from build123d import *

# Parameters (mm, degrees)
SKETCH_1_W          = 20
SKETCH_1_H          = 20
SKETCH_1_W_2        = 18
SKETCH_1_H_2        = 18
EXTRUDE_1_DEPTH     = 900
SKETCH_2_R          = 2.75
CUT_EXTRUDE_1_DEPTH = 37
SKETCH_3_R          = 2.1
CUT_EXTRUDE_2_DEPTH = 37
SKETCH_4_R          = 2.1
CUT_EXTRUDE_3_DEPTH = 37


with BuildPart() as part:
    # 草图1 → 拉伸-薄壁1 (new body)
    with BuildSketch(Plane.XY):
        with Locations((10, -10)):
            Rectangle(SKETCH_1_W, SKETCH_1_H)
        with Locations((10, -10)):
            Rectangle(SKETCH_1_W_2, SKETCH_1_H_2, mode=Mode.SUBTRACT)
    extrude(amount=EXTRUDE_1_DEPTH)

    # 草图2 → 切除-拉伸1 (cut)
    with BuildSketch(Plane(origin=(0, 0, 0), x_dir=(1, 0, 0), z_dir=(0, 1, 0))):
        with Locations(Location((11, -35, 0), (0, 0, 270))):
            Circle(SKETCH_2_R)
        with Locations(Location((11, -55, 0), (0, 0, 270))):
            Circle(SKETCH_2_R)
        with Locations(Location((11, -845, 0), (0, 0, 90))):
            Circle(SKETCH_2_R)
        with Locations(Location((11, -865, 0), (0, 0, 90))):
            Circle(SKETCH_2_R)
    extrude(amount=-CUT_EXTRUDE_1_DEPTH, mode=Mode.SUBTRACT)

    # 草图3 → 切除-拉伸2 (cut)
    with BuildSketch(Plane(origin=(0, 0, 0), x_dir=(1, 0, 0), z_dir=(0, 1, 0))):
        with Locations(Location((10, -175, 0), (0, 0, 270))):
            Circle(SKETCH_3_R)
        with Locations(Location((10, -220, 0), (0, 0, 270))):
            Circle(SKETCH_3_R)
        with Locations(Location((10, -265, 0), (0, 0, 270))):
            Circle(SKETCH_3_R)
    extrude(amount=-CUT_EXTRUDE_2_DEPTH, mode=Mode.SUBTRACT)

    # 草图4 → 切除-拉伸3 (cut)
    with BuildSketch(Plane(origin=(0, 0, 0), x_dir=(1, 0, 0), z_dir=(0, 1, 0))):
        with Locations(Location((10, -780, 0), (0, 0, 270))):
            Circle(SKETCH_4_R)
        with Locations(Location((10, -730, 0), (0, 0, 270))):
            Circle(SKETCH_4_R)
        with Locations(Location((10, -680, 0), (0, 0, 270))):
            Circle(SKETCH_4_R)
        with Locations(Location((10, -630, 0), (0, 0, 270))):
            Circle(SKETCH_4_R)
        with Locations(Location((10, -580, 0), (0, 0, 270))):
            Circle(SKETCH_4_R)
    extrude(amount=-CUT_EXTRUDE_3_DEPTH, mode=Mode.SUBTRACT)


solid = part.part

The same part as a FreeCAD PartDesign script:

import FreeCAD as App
import Part
import Sketcher
Q = App.Units.Quantity

doc = App.newDocument("Part")
params = doc.addObject("Spreadsheet::Sheet", "Params")
for row, (alias, value) in enumerate([
    ("sketch1_width", "20 mm"),
    ("sketch1_width2", "18 mm"),
    ("pad1_length", "900 mm"),
    ("sketch2_diameter", "5.5 mm"),
    ("pocket1_length", "37 mm"),
    ("sketch3_diameter", "4.2 mm"),
    ("pocket2_length", "37 mm"),
    ("sketch4_diameter", "4.2 mm"),
    ("pocket3_length", "37 mm"),
], start=1):
    params.set(f"A{row}", alias)
    params.set(f"B{row}", "=" + value)
    params.setAlias(f"B{row}", alias)

body = doc.addObject("PartDesign::Body", "Body")

sketch1 = body.newObject("Sketcher::SketchObject", "Sketch")
sketch1.AttachmentSupport = (doc.getObject("XY_Plane"), [""])
sketch1.MapMode = "FlatFace"
sketch1.addGeometry(Part.LineSegment(App.Vector(0, 0, 0), App.Vector(0, -20, 0)), False)
sketch1.addGeometry(Part.LineSegment(App.Vector(0, -20, 0), App.Vector(20, -20, 0)), False)
sketch1.addGeometry(Part.LineSegment(App.Vector(20, -20, 0), App.Vector(20, 0, 0)), False)
sketch1.addGeometry(Part.LineSegment(App.Vector(20, 0, 0), App.Vector(0, 0, 0)), False)
sketch1.addGeometry(Part.LineSegment(App.Vector(19, -19, 0), App.Vector(1, -19, 0)), False)
sketch1.addGeometry(Part.LineSegment(App.Vector(1, -19, 0), App.Vector(1, -1, 0)), False)
sketch1.addGeometry(Part.LineSegment(App.Vector(1, -1, 0), App.Vector(19, -1, 0)), False)
sketch1.addGeometry(Part.LineSegment(App.Vector(19, -1, 0), App.Vector(19, -19, 0)), False)
sketch1.addConstraint(Sketcher.Constraint("Coincident", 0, 2, 1, 1))
sketch1.addConstraint(Sketcher.Constraint("Coincident", 1, 2, 2, 1))
sketch1.addConstraint(Sketcher.Constraint("Coincident", 2, 2, 3, 1))
sketch1.addConstraint(Sketcher.Constraint("Coincident", 3, 2, 0, 1))
sketch1.addConstraint(Sketcher.Constraint("Coincident", 4, 2, 5, 1))
sketch1.addConstraint(Sketcher.Constraint("Coincident", 5, 2, 6, 1))
sketch1.addConstraint(Sketcher.Constraint("Coincident", 6, 2, 7, 1))
sketch1.addConstraint(Sketcher.Constraint("Coincident", 7, 2, 4, 1))
sketch1.addConstraint(Sketcher.Constraint("Vertical", 0))
sketch1.addConstraint(Sketcher.Constraint("Horizontal", 1))
sketch1.addConstraint(Sketcher.Constraint("Vertical", 2))
sketch1.addConstraint(Sketcher.Constraint("Horizontal", 3))
sketch1.addConstraint(Sketcher.Constraint("Horizontal", 4))
sketch1.addConstraint(Sketcher.Constraint("Vertical", 5))
sketch1.addConstraint(Sketcher.Constraint("Horizontal", 6))
sketch1.addConstraint(Sketcher.Constraint("Vertical", 7))
sketch1.addConstraint(Sketcher.Constraint("Coincident", 3, 2, -1, 1))
sketch1.addConstraint(Sketcher.Constraint("Equal", 3, 0))
sketch1.addConstraint(Sketcher.Constraint("Equal", 6, 5))
sketch1.addConstraint(Sketcher.Constraint("DistanceX", 1, 1, 1, 2, Q("20 mm")))
sketch1.addConstraint(Sketcher.Constraint("DistanceX", 4, 2, 4, 1, Q("18 mm")))
sketch1.addConstraint(Sketcher.Constraint("DistanceX", -1, 1, 4, 2, Q("1 mm")))
sketch1.addConstraint(Sketcher.Constraint("DistanceY", 4, 2, -1, 1, Q("19 mm")))
sketch1.setExpression("Constraints[19]", "Params.sketch1_width")
sketch1.setExpression("Constraints[20]", "Params.sketch1_width2")
pad1 = body.newObject("PartDesign::Pad", "Pad")
pad1.Profile = sketch1
pad1.setExpression("Length", "Params.pad1_length")

sketch2 = body.newObject("Sketcher::SketchObject", "Sketch001")
sketch2.AttachmentSupport = (doc.getObject("XZ_Plane"), [""])
sketch2.MapMode = "FlatFace"
sketch2.addGeometry(Part.Circle(App.Vector(11, 35, 0), App.Vector(0, 0, 1), 2.75), False)
sketch2.addGeometry(Part.Circle(App.Vector(11, 55, 0), App.Vector(0, 0, 1), 2.75), False)
sketch2.addGeometry(Part.Circle(App.Vector(11, 845, 0), App.Vector(0, 0, 1), 2.75), False)
sketch2.addGeometry(Part.Circle(App.Vector(11, 865, 0), App.Vector(0, 0, 1), 2.75), False)
sketch2.addConstraint(Sketcher.Constraint("Equal", 0, 1))
sketch2.addConstraint(Sketcher.Constraint("Equal", 1, 2))
sketch2.addConstraint(Sketcher.Constraint("Equal", 2, 3))
sketch2.addConstraint(Sketcher.Constraint("Vertical", 0, 3, 1, 3))
sketch2.addConstraint(Sketcher.Constraint("Vertical", 1, 3, 2, 3))
sketch2.addConstraint(Sketcher.Constraint("Vertical", 2, 3, 3, 3))
sketch2.addConstraint(Sketcher.Constraint("Diameter", 0, Q("5.5 mm")))
sketch2.addConstraint(Sketcher.Constraint("DistanceX", -1, 1, 0, 3, Q("11 mm")))
sketch2.addConstraint(Sketcher.Constraint("DistanceY", -1, 1, 0, 3, Q("35 mm")))
sketch2.addConstraint(Sketcher.Constraint("DistanceY", -1, 1, 1, 3, Q("55 mm")))
sketch2.addConstraint(Sketcher.Constraint("DistanceY", -1, 1, 2, 3, Q("845 mm")))
sketch2.addConstraint(Sketcher.Constraint("DistanceY", -1, 1, 3, 3, Q("865 mm")))
sketch2.setExpression("Constraints[6]", "Params.sketch2_diameter")
pocket1 = body.newObject("PartDesign::Pocket", "Pocket")
pocket1.Profile = sketch2
pocket1.setExpression("Length", "Params.pocket1_length")
pocket1.Reversed = True

sketch3 = body.newObject("Sketcher::SketchObject", "Sketch002")
sketch3.AttachmentSupport = (doc.getObject("XZ_Plane"), [""])
sketch3.MapMode = "FlatFace"
sketch3.addGeometry(Part.Circle(App.Vector(10, 175, 0), App.Vector(0, 0, 1), 2.1), False)
sketch3.addGeometry(Part.Circle(App.Vector(10, 220, 0), App.Vector(0, 0, 1), 2.1), False)
sketch3.addGeometry(Part.Circle(App.Vector(10, 265, 0), App.Vector(0, 0, 1), 2.1), False)
sketch3.addConstraint(Sketcher.Constraint("Equal", 0, 1))
sketch3.addConstraint(Sketcher.Constraint("Equal", 1, 2))
sketch3.addConstraint(Sketcher.Constraint("Vertical", 0, 3, 1, 3))
sketch3.addConstraint(Sketcher.Constraint("Vertical", 1, 3, 2, 3))
sketch3.addConstraint(Sketcher.Constraint("Diameter", 0, Q("4.2 mm")))
sketch3.addConstraint(Sketcher.Constraint("DistanceX", -1, 1, 0, 3, Q("10 mm")))
sketch3.addConstraint(Sketcher.Constraint("DistanceY", -1, 1, 0, 3, Q("175 mm")))
sketch3.addConstraint(Sketcher.Constraint("DistanceY", -1, 1, 1, 3, Q("220 mm")))
sketch3.addConstraint(Sketcher.Constraint("DistanceY", -1, 1, 2, 3, Q("265 mm")))
sketch3.setExpression("Constraints[4]", "Params.sketch3_diameter")
pocket2 = body.newObject("PartDesign::Pocket", "Pocket001")
pocket2.Profile = sketch3
pocket2.setExpression("Length", "Params.pocket2_length")
pocket2.Reversed = True

sketch4 = body.newObject("Sketcher::SketchObject", "Sketch003")
sketch4.AttachmentSupport = (doc.getObject("XZ_Plane"), [""])
sketch4.MapMode = "FlatFace"
sketch4.addGeometry(Part.Circle(App.Vector(10, 780, 0), App.Vector(0, 0, 1), 2.1), False)
sketch4.addGeometry(Part.Circle(App.Vector(10, 730, 0), App.Vector(0, 0, 1), 2.1), False)
sketch4.addGeometry(Part.Circle(App.Vector(10, 680, 0), App.Vector(0, 0, 1), 2.1), False)
sketch4.addGeometry(Part.Circle(App.Vector(10, 630, 0), App.Vector(0, 0, 1), 2.1), False)
sketch4.addGeometry(Part.Circle(App.Vector(10, 580, 0), App.Vector(0, 0, 1), 2.1), False)
sketch4.addConstraint(Sketcher.Constraint("Equal", 0, 1))
sketch4.addConstraint(Sketcher.Constraint("Equal", 1, 2))
sketch4.addConstraint(Sketcher.Constraint("Equal", 2, 3))
sketch4.addConstraint(Sketcher.Constraint("Equal", 3, 4))
sketch4.addConstraint(Sketcher.Constraint("Vertical", 0, 3, 1, 3))
sketch4.addConstraint(Sketcher.Constraint("Vertical", 1, 3, 2, 3))
sketch4.addConstraint(Sketcher.Constraint("Vertical", 2, 3, 3, 3))
sketch4.addConstraint(Sketcher.Constraint("Vertical", 3, 3, 4, 3))
sketch4.addConstraint(Sketcher.Constraint("Diameter", 0, Q("4.2 mm")))
sketch4.addConstraint(Sketcher.Constraint("DistanceX", -1, 1, 0, 3, Q("10 mm")))
sketch4.addConstraint(Sketcher.Constraint("DistanceY", -1, 1, 0, 3, Q("780 mm")))
sketch4.addConstraint(Sketcher.Constraint("DistanceY", -1, 1, 1, 3, Q("730 mm")))
sketch4.addConstraint(Sketcher.Constraint("DistanceY", -1, 1, 2, 3, Q("680 mm")))
sketch4.addConstraint(Sketcher.Constraint("DistanceY", -1, 1, 3, 3, Q("630 mm")))
sketch4.addConstraint(Sketcher.Constraint("DistanceY", -1, 1, 4, 3, Q("580 mm")))
sketch4.setExpression("Constraints[8]", "Params.sketch4_diameter")
pocket3 = body.newObject("PartDesign::Pocket", "Pocket002")
pocket3.Profile = sketch4
pocket3.setExpression("Length", "Params.pocket3_length")
pocket3.Reversed = True

doc.recompute()
